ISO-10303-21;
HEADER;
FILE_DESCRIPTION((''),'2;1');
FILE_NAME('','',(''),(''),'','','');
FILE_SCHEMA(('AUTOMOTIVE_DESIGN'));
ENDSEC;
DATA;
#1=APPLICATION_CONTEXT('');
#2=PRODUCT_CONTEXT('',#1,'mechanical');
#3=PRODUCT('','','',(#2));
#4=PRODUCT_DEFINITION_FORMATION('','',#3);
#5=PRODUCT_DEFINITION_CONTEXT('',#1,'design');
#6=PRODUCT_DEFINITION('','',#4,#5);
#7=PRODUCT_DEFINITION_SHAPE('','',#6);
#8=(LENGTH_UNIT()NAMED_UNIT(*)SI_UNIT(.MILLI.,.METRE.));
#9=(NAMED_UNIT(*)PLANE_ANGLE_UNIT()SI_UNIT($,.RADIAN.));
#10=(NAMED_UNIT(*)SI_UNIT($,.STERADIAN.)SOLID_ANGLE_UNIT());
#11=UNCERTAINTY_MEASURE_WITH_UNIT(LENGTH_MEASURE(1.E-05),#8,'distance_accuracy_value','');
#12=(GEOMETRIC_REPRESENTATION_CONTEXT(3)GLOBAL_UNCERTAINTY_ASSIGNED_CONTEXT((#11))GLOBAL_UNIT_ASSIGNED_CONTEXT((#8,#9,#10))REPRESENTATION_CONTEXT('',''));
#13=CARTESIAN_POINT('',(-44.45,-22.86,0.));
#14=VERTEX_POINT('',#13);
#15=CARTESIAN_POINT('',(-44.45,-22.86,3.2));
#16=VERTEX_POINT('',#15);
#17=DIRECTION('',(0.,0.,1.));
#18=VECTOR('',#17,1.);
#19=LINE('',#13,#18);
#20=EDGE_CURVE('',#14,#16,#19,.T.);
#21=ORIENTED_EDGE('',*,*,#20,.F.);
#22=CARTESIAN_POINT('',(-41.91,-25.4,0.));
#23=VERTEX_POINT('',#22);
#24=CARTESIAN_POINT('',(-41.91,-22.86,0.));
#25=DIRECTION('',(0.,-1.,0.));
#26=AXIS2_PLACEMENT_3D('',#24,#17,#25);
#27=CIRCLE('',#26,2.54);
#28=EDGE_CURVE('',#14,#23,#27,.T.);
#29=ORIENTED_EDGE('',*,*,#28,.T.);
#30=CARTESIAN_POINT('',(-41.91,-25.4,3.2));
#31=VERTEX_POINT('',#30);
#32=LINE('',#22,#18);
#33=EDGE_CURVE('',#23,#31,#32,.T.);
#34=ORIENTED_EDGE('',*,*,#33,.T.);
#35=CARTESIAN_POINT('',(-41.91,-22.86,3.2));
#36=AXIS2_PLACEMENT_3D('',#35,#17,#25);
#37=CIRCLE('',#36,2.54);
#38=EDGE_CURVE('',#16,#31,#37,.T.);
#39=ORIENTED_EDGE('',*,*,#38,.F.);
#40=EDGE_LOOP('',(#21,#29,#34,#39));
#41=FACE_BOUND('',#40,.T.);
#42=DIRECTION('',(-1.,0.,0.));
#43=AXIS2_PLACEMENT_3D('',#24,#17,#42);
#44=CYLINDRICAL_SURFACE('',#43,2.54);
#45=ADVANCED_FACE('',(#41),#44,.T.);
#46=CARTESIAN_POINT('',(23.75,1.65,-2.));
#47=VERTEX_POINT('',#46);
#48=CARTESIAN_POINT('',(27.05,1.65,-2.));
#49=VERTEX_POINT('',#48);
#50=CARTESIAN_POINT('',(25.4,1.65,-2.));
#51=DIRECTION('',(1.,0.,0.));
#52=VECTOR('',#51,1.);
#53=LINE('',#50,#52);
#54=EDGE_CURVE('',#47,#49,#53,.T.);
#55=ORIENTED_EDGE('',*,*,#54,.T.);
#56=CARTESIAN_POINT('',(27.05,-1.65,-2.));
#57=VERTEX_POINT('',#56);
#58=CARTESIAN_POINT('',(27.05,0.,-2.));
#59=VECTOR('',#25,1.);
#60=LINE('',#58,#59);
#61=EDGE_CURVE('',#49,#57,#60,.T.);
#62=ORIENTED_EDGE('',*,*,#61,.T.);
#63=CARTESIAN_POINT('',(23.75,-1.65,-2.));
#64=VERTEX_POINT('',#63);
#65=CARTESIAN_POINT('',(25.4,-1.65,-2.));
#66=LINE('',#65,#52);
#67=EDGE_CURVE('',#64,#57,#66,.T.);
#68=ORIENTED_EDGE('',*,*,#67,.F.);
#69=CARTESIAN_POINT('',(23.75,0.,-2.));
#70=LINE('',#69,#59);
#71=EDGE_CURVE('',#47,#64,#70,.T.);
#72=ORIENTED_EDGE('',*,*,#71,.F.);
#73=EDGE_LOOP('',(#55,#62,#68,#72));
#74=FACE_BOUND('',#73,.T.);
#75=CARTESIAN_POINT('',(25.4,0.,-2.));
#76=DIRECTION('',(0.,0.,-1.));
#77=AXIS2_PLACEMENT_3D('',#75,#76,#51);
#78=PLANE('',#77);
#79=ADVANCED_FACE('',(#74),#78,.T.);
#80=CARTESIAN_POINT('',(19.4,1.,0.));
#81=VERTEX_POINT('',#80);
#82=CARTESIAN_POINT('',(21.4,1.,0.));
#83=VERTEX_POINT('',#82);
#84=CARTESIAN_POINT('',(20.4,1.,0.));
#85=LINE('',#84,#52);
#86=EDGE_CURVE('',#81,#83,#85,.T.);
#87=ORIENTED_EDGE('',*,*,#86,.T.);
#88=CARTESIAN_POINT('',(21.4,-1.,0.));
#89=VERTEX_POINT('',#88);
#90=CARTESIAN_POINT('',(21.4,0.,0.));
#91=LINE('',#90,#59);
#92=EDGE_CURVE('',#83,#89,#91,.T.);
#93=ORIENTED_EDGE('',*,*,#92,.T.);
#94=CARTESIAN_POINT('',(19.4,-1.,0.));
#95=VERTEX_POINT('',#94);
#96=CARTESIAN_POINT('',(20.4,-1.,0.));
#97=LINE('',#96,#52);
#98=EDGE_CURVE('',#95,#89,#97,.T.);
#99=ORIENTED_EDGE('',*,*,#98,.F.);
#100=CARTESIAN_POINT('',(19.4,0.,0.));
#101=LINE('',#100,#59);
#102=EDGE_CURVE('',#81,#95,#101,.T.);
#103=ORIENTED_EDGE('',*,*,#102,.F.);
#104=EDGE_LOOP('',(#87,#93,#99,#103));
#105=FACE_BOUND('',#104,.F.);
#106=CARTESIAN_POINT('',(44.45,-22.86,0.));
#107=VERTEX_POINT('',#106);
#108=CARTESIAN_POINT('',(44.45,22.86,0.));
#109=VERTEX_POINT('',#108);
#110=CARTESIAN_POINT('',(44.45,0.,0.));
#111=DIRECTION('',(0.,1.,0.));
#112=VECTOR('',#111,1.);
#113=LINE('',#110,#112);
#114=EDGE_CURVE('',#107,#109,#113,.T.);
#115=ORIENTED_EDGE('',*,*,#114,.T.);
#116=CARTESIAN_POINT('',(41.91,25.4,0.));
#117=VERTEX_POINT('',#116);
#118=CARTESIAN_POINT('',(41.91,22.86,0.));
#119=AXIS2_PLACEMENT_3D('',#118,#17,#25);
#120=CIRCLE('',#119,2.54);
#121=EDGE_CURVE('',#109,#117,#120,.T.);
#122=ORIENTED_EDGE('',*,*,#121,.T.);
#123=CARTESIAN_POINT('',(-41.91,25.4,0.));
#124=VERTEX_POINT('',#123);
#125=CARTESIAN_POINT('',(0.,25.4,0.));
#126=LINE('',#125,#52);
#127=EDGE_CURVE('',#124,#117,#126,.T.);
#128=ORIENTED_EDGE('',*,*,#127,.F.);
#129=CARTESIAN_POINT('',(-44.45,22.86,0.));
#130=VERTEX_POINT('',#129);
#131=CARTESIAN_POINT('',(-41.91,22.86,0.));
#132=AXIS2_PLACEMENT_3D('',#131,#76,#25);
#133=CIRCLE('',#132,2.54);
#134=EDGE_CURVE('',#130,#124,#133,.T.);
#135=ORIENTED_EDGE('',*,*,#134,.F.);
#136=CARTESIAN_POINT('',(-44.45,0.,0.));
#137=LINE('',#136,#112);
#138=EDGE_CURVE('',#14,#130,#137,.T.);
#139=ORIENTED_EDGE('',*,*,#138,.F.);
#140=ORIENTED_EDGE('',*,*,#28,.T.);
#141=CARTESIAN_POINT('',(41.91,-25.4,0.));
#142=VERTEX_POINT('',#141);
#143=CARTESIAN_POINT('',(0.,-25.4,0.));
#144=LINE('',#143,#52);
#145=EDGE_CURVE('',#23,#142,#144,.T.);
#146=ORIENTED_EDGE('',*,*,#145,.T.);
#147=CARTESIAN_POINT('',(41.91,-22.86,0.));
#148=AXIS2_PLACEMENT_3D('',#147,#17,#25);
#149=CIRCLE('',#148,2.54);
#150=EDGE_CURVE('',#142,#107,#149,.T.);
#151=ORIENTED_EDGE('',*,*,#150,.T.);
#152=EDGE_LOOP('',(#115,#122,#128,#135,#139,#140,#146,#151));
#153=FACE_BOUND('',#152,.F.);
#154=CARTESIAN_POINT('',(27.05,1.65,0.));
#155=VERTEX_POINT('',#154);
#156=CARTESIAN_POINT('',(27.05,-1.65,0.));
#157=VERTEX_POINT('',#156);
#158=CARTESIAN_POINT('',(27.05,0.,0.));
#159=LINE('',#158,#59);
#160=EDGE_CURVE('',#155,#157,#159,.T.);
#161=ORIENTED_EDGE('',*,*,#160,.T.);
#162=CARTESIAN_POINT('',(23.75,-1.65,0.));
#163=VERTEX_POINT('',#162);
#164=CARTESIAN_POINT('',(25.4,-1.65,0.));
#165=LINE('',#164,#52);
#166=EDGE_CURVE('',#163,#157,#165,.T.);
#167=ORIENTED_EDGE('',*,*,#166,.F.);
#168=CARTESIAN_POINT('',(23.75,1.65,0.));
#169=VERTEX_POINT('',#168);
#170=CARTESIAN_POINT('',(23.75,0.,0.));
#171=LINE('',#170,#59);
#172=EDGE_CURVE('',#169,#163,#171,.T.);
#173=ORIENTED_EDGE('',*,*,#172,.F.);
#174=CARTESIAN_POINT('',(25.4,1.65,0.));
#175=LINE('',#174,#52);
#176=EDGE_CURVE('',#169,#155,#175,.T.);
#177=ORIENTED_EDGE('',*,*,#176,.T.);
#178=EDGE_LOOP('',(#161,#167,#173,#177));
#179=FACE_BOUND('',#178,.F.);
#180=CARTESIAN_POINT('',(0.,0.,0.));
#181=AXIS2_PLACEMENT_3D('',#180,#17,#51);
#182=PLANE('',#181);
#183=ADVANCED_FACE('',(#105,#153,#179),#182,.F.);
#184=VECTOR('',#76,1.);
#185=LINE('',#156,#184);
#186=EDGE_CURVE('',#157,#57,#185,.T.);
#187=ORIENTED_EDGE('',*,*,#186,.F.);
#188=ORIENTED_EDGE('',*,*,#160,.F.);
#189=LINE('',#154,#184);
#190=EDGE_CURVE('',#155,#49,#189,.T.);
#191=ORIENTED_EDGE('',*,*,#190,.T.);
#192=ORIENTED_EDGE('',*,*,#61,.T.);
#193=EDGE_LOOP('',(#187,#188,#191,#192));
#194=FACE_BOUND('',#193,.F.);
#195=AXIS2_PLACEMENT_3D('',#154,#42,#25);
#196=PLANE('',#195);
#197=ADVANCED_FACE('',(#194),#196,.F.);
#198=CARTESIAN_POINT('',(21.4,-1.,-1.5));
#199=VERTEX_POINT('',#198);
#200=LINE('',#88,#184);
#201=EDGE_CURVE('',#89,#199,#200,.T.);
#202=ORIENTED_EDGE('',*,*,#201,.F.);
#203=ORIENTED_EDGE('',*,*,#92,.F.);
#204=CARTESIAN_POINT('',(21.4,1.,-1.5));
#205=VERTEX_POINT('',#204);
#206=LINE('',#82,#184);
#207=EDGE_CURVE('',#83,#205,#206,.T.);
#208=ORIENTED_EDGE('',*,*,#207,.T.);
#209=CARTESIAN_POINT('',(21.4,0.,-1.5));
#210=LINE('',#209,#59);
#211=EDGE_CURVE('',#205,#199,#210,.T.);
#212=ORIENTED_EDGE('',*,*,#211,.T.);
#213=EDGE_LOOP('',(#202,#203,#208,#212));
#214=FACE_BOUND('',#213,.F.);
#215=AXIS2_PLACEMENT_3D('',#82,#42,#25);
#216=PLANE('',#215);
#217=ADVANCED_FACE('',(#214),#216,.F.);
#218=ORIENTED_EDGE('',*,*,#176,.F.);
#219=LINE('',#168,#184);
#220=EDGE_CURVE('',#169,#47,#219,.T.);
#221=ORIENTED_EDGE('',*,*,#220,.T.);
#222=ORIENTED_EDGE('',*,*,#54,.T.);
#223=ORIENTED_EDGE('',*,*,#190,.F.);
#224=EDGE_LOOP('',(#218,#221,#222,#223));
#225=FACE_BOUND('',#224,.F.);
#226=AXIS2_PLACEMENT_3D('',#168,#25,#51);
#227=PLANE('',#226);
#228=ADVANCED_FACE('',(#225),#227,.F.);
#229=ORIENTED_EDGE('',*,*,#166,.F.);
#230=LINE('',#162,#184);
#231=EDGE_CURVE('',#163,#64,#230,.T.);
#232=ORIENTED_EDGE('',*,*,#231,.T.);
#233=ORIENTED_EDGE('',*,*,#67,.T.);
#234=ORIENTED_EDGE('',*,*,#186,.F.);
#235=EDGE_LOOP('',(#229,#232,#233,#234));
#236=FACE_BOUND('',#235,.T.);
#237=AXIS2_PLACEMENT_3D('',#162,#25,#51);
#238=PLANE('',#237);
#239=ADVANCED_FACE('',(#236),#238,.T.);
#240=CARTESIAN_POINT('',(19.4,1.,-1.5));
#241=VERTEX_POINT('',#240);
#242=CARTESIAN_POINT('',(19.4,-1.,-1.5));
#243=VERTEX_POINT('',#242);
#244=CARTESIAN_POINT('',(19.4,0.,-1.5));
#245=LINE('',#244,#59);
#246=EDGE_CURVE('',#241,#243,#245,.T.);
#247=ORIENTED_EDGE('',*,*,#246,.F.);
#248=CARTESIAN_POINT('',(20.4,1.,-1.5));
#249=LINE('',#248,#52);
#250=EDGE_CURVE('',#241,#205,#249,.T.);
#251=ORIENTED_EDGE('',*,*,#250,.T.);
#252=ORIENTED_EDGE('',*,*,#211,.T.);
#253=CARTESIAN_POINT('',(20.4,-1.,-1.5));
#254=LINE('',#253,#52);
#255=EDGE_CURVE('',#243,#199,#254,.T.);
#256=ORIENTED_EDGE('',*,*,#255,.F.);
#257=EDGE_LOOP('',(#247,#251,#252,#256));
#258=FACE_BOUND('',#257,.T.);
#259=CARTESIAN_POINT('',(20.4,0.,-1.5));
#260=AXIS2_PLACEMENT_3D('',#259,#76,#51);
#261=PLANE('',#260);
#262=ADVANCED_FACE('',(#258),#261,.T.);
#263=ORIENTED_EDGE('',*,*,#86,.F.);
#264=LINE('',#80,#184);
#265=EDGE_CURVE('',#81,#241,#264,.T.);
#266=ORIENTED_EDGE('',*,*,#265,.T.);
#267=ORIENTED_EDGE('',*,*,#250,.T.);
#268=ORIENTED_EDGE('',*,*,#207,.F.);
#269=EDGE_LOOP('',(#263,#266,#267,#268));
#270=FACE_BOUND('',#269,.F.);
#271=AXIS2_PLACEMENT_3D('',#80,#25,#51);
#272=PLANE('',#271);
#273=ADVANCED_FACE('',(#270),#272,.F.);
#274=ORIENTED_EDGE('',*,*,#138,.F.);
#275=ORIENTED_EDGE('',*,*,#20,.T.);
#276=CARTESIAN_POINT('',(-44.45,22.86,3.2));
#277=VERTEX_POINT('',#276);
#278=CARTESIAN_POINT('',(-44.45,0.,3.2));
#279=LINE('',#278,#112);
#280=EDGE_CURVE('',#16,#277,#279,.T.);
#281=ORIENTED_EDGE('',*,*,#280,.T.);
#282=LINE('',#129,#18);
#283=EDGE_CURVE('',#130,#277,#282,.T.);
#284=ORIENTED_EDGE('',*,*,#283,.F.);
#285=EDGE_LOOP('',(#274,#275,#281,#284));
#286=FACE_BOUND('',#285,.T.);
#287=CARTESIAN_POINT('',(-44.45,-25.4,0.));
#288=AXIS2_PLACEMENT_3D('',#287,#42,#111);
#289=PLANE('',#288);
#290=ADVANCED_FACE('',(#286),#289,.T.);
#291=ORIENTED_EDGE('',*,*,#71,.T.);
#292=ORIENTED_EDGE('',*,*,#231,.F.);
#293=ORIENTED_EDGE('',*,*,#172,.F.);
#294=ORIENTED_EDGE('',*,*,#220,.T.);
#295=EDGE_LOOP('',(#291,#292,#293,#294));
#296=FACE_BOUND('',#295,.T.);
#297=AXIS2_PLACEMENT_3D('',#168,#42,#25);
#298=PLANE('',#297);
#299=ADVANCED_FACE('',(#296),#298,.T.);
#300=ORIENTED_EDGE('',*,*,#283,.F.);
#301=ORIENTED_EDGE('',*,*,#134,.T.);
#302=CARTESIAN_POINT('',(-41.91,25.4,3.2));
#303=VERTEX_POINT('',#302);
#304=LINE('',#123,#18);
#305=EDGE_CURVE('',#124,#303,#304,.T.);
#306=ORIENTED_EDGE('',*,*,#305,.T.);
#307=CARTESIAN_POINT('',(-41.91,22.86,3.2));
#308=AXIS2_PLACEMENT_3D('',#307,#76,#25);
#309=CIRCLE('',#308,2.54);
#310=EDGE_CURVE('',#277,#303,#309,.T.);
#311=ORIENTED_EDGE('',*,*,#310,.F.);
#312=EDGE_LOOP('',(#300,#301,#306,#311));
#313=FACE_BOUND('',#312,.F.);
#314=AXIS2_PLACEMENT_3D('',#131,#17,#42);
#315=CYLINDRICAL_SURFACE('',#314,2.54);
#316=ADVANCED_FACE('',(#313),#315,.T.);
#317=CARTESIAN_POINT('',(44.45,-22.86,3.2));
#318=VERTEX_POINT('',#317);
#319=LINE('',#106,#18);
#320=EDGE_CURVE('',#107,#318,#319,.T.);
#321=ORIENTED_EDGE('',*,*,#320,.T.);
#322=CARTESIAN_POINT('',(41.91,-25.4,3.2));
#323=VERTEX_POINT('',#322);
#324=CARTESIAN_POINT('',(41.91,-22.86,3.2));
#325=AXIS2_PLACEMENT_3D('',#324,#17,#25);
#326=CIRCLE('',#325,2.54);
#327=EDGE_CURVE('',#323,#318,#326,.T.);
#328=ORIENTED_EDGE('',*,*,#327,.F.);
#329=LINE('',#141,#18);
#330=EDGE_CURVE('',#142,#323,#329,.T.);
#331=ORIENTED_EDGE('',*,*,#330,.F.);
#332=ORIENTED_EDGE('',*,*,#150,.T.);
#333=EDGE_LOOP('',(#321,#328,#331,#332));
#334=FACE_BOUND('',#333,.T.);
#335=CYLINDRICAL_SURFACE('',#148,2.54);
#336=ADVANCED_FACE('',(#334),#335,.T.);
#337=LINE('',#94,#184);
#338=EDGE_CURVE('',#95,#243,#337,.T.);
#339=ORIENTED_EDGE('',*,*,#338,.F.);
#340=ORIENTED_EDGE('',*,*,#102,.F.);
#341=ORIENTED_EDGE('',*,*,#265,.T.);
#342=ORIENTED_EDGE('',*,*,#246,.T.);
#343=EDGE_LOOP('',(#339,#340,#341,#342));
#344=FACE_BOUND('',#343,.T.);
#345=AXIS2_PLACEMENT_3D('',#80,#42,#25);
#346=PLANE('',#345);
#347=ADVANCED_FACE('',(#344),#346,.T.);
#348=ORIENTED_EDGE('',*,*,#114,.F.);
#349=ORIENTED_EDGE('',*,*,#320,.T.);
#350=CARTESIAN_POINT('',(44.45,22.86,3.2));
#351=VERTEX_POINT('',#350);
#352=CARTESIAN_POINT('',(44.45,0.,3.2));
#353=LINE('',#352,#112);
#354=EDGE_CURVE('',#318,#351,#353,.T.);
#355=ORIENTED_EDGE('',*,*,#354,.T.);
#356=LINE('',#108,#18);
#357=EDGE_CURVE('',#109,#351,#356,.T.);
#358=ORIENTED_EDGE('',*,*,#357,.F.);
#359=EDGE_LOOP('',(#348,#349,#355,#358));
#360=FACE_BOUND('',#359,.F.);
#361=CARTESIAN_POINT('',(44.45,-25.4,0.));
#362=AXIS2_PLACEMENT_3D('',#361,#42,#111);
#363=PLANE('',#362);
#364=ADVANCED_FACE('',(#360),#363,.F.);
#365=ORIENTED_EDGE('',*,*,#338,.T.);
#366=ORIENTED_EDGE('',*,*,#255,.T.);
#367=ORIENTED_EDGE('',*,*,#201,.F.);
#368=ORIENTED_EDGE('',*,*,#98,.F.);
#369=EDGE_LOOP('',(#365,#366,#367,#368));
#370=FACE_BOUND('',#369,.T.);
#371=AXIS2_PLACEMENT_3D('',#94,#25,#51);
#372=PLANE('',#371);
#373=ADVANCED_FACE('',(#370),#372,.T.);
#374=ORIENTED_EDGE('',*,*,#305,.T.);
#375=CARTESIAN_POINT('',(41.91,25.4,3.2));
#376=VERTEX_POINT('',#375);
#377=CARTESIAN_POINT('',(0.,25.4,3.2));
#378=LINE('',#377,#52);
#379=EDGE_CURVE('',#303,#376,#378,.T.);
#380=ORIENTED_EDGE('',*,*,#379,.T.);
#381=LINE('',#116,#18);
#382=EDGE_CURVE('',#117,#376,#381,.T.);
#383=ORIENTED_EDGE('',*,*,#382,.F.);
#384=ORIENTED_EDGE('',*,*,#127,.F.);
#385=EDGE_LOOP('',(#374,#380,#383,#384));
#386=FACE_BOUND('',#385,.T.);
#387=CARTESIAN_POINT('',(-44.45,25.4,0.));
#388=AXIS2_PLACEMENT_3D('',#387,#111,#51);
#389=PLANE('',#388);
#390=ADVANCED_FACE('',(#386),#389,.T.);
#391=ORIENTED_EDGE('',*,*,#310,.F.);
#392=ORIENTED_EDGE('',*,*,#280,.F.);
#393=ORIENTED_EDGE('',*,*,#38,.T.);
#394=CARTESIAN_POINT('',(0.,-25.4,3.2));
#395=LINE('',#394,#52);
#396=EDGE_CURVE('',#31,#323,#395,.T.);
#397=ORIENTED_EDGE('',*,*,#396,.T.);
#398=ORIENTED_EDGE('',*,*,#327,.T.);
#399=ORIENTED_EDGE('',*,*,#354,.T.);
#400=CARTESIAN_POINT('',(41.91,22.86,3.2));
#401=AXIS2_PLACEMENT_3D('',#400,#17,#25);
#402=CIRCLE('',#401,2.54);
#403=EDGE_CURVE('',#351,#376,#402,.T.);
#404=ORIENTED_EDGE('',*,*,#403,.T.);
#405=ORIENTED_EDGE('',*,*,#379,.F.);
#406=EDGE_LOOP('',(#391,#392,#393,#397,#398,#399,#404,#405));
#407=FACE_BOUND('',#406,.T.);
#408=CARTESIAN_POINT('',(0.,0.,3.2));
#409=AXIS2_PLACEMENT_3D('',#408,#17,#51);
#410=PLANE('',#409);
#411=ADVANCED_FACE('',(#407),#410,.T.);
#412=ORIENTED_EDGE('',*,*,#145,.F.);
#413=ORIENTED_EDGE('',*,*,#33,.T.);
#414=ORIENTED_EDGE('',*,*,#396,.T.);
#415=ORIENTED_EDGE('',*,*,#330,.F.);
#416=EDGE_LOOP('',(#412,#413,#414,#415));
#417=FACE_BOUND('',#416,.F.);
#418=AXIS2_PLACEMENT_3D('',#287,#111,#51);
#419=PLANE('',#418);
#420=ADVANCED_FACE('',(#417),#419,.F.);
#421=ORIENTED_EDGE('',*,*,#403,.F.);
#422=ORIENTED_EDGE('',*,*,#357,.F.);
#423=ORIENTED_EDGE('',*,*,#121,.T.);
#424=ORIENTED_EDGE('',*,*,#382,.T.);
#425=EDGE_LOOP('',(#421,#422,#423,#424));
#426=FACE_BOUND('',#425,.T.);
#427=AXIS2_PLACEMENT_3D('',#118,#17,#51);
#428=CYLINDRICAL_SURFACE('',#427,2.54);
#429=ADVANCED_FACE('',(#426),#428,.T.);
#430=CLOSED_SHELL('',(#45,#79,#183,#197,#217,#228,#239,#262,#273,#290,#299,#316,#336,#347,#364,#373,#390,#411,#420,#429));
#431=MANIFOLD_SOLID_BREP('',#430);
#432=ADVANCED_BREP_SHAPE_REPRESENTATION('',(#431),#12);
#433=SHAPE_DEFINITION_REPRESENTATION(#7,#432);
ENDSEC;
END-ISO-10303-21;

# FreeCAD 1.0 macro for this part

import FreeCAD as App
import Part
import Sketcher
from FreeCAD import Vector
Q = App.Units.Quantity


def edges_at(feature, points):
    """Names of the edges that pass closest to the given points."""
    edges = feature.Shape.Edges
    near = lambda p: min(range(len(edges)), key=lambda i: edges[i].distToShape(Part.Vertex(*p))[0])
    return sorted({f"Edge{near(p) + 1}" for p in points})

doc = App.newDocument("Part")
body = doc.addObject("PartDesign::Body", "Body")

sketch1 = body.newObject("Sketcher::SketchObject", "Sketch")
sketch1.AttachmentSupport = (doc.getObject("XY_Plane"), [""])
sketch1.MapMode = "FlatFace"
sketch1.addGeometry(Part.LineSegment(Vector(-44, 25, 0), Vector(-44, -25, 0)), False)
sketch1.addGeometry(Part.LineSegment(Vector(-44, -25, 0), Vector(44, -25, 0)), False)
sketch1.addGeometry(Part.LineSegment(Vector(44, -25, 0), Vector(44, 25, 0)), False)
sketch1.addGeometry(Part.LineSegment(Vector(44, 25, 0), Vector(-44, 25, 0)), False)
sketch1.addConstraint(Sketcher.Constraint("Coincident", 0, 2, 1, 1))
sketch1.addConstraint(Sketcher.Constraint("Coincident", 1, 2, 2, 1))
sketch1.addConstraint(Sketcher.Constraint("Coincident", 2, 2, 3, 1))
sketch1.addConstraint(Sketcher.Constraint("Coincident", 3, 2, 0, 1))
sketch1.addConstraint(Sketcher.Constraint("Vertical", 0))
sketch1.addConstraint(Sketcher.Constraint("Horizontal", 1))
sketch1.addConstraint(Sketcher.Constraint("Vertical", 2))
sketch1.addConstraint(Sketcher.Constraint("Horizontal", 3))
sketch1.addConstraint(Sketcher.Constraint("Symmetric", 0, 2, 2, 2, -1, 1))
sketch1.addConstraint(Sketcher.Constraint("DistanceX", 1, 1, 1, 2, Q("88.9 mm")))
sketch1.addConstraint(Sketcher.Constraint("DistanceY", 0, 2, 0, 1, Q("50.8 mm")))
pad1 = body.newObject("PartDesign::Pad", "Pad")
pad1.Profile = sketch1
pad1.Length = 3.2
doc.recompute()

fillet = body.newObject("PartDesign::Fillet", "Fillet")
fillet.Base = (pad1, edges_at(pad1, [
    (44.45, -25.4, 1.6),
    (44.45, 25.4, 1.6),
    (-44.45, -25.4, 1.6),
    (-44.45, 25.4, 1.6),
]))
fillet.Radius = 2.54

sketch2 = body.newObject("Sketcher::SketchObject", "Sketch001")
sketch2.AttachmentSupport = (doc.getObject("XY_Plane"), [""])
sketch2.MapMode = "FlatFace"
sketch2.addGeometry(Part.LineSegment(Vector(23.8, -1.6, 0), Vector(23.8, 1.6, 0)), False)
sketch2.addGeometry(Part.LineSegment(Vector(23.8, 1.6, 0), Vector(27.1, 1.6, 0)), False)
sketch2.addGeometry(Part.LineSegment(Vector(27.1, 1.6, 0), Vector(27.1, -1.6, 0)), False)
sketch2.addGeometry(Part.LineSegment(Vector(27.1, -1.6, 0), Vector(23.8, -1.6, 0)), False)
sketch2.addConstraint(Sketcher.Constraint("Coincident", 0, 2, 1, 1))
sketch2.addConstraint(Sketcher.Constraint("Coincident", 1, 2, 2, 1))
sketch2.addConstraint(Sketcher.Constraint("Coincident", 2, 2, 3, 1))
sketch2.addConstraint(Sketcher.Constraint("Coincident", 3, 2, 0, 1))
sketch2.addConstraint(Sketcher.Constraint("Vertical", 0))
sketch2.addConstraint(Sketcher.Constraint("Horizontal", 1))
sketch2.addConstraint(Sketcher.Constraint("Vertical", 2))
sketch2.addConstraint(Sketcher.Constraint("Horizontal", 3))
sketch2.addConstraint(Sketcher.Constraint("Equal", 3, 0))
sketch2.addConstraint(Sketcher.Constraint("DistanceX", 1, 1, 1, 2, Q("3.3 mm")))
sketch2.addConstraint(Sketcher.Constraint("DistanceX", -1, 1, 0, 2, Q("23.75 mm")))
sketch2.addConstraint(Sketcher.Constraint("DistanceY", -1, 1, 0, 2, Q("1.65 mm")))
pad2 = body.newObject("PartDesign::Pad", "Pad001")
pad2.Profile = sketch2
pad2.Length = 2
pad2.Reversed = True

sketch3 = body.newObject("Sketcher::SketchObject", "Sketch002")
sketch3.AttachmentSupport = (doc.getObject("XY_Plane"), [""])
sketch3.MapMode = "FlatFace"
sketch3.addGeometry(Part.LineSegment(Vector(19.4, -1, 0), Vector(19.4, 1, 0)), False)
sketch3.addGeometry(Part.LineSegment(Vector(19.4, 1, 0), Vector(21.4, 1, 0)), False)
sketch3.addGeometry(Part.LineSegment(Vector(21.4, 1, 0), Vector(21.4, -1, 0)), False)
sketch3.addGeometry(Part.LineSegment(Vector(21.4, -1, 0), Vector(19.4, -1, 0)), False)
sketch3.addConstraint(Sketcher.Constraint("Coincident", 0, 2, 1, 1))
sketch3.addConstraint(Sketcher.Constraint("Coincident", 1, 2, 2, 1))
sketch3.addConstraint(Sketcher.Constraint("Coincident", 2, 2, 3, 1))
sketch3.addConstraint(Sketcher.Constraint("Coincident", 3, 2, 0, 1))
sketch3.addConstraint(Sketcher.Constraint("Vertical", 0))
sketch3.addConstraint(Sketcher.Constraint("Horizontal", 1))
sketch3.addConstraint(Sketcher.Constraint("Vertical", 2))
sketch3.addConstraint(Sketcher.Constraint("Horizontal", 3))
sketch3.addConstraint(Sketcher.Constraint("Equal", 3, 0))
sketch3.addConstraint(Sketcher.Constraint("DistanceX", 1, 1, 1, 2, Q("2 mm")))
sketch3.addConstraint(Sketcher.Constraint("DistanceY", -1, 1, 0, 2, Q("1 mm")))
sketch3.addConstraint(Sketcher.Constraint("DistanceX", -1, 1, 0, 2, Q("19.4 mm")))
pad3 = body.newObject("PartDesign::Pad", "Pad002")
pad3.Profile = sketch3
pad3.Length = 1.5
pad3.Reversed = True

doc.recompute()
